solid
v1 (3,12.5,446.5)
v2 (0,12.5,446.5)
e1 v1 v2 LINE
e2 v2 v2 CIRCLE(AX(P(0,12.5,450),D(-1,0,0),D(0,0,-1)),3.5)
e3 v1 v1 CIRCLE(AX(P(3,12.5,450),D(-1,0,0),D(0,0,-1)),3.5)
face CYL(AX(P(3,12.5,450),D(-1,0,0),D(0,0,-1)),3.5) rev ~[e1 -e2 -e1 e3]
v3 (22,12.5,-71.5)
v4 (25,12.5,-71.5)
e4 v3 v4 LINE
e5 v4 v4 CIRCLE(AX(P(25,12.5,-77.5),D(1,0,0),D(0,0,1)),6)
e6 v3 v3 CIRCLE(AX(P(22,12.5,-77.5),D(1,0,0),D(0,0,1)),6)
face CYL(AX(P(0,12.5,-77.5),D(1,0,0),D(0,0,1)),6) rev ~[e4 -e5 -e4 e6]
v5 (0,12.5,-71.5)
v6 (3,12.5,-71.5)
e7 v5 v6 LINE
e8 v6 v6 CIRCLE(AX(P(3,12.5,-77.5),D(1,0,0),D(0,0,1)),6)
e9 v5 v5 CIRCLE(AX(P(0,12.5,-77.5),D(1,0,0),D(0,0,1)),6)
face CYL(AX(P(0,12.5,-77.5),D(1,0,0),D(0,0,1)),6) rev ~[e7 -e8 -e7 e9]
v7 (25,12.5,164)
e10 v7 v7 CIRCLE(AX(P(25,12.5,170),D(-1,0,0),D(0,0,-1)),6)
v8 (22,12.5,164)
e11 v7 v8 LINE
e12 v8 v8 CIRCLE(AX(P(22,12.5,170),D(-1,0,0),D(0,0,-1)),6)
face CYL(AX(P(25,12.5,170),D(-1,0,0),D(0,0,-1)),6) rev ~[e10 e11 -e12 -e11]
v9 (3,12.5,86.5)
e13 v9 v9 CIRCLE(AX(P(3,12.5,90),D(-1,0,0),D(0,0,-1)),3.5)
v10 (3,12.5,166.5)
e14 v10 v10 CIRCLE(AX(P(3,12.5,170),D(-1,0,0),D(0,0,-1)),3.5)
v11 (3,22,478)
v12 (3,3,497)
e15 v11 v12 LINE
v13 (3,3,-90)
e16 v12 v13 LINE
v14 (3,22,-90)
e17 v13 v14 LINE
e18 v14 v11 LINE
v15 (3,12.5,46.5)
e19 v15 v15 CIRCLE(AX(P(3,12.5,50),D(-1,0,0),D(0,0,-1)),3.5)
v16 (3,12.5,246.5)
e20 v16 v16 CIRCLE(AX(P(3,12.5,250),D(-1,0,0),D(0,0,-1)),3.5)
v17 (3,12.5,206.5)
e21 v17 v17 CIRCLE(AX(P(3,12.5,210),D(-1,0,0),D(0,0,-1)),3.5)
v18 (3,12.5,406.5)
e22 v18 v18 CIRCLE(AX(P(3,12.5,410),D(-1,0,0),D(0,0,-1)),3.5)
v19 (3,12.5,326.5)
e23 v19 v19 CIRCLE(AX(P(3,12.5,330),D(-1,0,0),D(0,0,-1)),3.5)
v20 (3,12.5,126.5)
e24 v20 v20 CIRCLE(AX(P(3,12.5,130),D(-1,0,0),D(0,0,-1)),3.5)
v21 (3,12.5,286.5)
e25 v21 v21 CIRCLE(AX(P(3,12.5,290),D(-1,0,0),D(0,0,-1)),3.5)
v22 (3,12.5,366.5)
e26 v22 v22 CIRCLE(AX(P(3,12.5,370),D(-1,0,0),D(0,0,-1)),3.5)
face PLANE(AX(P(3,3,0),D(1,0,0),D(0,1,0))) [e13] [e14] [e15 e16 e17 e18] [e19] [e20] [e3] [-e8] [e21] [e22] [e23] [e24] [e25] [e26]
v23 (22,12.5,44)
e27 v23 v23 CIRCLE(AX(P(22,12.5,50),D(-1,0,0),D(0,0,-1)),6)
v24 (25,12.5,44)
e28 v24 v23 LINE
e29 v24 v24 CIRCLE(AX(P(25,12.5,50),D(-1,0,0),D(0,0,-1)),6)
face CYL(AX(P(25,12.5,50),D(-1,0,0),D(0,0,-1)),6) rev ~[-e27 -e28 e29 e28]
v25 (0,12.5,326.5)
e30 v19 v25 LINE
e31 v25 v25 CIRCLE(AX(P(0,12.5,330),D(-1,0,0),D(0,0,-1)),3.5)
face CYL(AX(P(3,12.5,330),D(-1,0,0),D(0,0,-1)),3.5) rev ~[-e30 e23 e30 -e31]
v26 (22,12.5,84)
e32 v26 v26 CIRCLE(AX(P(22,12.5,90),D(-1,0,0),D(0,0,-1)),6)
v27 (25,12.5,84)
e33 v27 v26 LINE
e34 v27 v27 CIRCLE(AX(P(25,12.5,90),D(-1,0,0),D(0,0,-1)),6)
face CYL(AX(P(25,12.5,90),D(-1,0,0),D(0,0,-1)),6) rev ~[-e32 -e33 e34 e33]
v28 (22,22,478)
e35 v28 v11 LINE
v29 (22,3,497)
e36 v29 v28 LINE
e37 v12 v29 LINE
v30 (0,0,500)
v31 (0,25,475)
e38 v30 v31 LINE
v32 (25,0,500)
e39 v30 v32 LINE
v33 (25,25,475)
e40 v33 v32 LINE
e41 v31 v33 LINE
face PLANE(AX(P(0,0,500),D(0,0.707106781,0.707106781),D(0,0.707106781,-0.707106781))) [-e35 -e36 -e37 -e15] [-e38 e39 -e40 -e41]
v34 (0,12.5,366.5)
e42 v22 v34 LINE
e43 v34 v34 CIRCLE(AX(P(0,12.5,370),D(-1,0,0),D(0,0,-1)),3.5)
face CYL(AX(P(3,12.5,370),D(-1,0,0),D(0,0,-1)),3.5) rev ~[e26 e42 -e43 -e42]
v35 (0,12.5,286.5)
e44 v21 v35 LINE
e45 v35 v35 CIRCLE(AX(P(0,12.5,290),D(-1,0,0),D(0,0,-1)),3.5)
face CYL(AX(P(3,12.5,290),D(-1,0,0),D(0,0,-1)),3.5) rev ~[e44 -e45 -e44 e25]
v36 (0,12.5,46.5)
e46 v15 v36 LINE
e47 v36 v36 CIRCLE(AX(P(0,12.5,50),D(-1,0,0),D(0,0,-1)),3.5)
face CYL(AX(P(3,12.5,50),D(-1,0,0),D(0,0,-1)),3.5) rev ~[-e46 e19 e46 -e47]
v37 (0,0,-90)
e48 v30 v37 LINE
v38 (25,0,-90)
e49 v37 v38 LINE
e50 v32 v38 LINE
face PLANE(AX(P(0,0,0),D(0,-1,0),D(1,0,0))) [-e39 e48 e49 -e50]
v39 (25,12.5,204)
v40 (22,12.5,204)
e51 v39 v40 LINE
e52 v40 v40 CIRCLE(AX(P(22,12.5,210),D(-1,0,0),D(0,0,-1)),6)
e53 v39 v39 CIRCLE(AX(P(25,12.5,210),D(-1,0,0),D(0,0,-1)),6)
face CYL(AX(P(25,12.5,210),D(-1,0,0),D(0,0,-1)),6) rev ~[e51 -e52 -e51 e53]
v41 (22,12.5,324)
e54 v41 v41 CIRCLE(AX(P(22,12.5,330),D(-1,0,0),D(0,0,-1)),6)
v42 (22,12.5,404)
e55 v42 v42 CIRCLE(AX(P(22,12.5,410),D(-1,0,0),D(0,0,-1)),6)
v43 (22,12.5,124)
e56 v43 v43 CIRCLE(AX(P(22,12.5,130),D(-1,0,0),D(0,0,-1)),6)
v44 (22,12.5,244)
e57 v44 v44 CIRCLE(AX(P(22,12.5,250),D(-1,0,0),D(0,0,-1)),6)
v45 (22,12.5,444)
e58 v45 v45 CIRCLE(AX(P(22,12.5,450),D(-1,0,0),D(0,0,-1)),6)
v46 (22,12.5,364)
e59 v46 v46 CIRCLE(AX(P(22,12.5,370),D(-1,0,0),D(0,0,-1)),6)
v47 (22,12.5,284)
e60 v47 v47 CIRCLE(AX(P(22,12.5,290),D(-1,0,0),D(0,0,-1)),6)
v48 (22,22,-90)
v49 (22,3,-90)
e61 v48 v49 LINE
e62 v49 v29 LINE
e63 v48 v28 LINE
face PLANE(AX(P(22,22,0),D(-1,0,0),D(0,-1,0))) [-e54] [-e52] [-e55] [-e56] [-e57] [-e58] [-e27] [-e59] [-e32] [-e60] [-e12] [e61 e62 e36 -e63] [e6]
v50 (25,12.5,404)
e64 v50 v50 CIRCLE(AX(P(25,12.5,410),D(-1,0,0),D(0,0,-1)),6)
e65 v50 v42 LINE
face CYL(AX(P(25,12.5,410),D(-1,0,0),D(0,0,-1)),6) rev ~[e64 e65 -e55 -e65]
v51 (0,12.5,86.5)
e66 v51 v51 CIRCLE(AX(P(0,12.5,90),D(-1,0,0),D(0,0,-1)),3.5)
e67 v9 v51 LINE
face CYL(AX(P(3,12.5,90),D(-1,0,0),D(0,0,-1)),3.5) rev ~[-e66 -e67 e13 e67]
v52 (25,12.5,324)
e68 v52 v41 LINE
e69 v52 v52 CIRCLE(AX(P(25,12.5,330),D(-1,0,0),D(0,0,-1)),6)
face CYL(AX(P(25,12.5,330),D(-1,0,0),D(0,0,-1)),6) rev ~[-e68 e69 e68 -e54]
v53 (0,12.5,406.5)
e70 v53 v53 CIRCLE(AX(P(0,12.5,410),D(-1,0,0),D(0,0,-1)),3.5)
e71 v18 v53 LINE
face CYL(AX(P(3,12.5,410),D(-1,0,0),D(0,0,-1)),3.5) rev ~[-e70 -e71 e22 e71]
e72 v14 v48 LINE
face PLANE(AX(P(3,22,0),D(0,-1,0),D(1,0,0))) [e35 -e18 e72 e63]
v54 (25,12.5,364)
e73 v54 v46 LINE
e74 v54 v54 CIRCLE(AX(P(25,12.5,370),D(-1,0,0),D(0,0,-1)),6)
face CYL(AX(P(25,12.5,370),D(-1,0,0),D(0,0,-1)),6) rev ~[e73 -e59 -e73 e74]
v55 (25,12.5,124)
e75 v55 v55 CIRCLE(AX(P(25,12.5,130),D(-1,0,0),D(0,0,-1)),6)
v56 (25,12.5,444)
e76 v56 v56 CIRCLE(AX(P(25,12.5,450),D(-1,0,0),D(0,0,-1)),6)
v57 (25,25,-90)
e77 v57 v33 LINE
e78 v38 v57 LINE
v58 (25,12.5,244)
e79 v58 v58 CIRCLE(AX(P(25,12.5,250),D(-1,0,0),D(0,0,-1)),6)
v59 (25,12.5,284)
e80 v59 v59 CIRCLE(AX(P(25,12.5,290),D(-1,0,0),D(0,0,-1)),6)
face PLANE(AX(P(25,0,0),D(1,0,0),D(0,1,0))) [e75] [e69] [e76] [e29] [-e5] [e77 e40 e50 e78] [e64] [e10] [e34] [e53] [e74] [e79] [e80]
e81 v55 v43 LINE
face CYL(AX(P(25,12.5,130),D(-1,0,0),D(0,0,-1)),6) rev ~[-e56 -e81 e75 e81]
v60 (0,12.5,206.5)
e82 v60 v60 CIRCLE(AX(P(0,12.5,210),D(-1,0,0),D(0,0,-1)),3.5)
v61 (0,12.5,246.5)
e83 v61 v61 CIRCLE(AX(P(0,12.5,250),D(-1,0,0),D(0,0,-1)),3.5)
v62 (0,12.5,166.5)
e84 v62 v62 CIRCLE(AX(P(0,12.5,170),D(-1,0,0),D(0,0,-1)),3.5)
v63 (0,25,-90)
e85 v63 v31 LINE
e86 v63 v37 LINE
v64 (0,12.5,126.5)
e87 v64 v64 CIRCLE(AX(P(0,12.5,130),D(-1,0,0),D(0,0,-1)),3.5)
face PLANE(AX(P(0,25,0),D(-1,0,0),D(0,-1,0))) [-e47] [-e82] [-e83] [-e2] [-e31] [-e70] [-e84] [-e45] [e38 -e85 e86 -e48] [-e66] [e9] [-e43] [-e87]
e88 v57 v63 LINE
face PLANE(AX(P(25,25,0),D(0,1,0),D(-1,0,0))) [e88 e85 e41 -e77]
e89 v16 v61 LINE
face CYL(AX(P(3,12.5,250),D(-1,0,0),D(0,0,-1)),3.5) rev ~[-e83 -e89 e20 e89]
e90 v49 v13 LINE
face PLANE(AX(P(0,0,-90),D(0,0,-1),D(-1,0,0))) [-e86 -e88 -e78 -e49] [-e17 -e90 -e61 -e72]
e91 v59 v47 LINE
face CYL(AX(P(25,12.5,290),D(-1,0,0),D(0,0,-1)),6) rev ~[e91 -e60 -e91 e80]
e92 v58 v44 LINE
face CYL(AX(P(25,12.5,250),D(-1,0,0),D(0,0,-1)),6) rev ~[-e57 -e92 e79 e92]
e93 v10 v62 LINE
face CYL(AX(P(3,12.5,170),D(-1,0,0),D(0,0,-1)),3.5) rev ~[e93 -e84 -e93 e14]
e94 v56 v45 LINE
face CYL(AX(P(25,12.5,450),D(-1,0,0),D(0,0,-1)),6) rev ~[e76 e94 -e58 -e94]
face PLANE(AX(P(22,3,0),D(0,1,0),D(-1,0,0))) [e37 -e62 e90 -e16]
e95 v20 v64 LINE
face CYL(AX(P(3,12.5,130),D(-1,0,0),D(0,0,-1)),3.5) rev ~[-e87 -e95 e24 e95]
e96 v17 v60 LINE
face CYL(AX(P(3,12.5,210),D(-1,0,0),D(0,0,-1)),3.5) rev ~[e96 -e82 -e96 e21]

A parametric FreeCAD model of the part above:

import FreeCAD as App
import Part
import Sketcher

V = App.Vector

doc = App.newDocument("Part")
body = doc.addObject("PartDesign::Body", "Body")

# Sketch on XY plane
sketch1 = doc.addObject("Sketcher::SketchObject", "Sketch")
body.addObject(sketch1)
sketch1.AttachmentSupport = (doc.XY_Plane, [""])
sketch1.MapMode = "FlatFace"
sketch1.addGeometry(Part.LineSegment(V(0, 25, 0), V(0, 0, 0)), False)
sketch1.addGeometry(Part.LineSegment(V(0, 0, 0), V(25, 0, 0)), False)
sketch1.addGeometry(Part.LineSegment(V(25, 0, 0), V(25, 25, 0)), False)
sketch1.addGeometry(Part.LineSegment(V(25, 25, 0), V(0, 25, 0)), False)
sketch1.addGeometry(Part.LineSegment(V(22, 3, 0), V(3, 3, 0)), False)
sketch1.addGeometry(Part.LineSegment(V(3, 3, 0), V(3, 22, 0)), False)
sketch1.addGeometry(Part.LineSegment(V(3, 22, 0), V(22, 22, 0)), False)
sketch1.addGeometry(Part.LineSegment(V(22, 22, 0), V(22, 3, 0)), False)
sketch1.addConstraint(Sketcher.Constraint("Coincident", 0, 2, 1, 1))
sketch1.addConstraint(Sketcher.Constraint("Coincident", 1, 2, 2, 1))
sketch1.addConstraint(Sketcher.Constraint("Coincident", 2, 2, 3, 1))
sketch1.addConstraint(Sketcher.Constraint("Coincident", 3, 2, 0, 1))
sketch1.addConstraint(Sketcher.Constraint("Coincident", 4, 2, 5, 1))
sketch1.addConstraint(Sketcher.Constraint("Coincident", 5, 2, 6, 1))
sketch1.addConstraint(Sketcher.Constraint("Coincident", 6, 2, 7, 1))
sketch1.addConstraint(Sketcher.Constraint("Coincident", 7, 2, 4, 1))
sketch1.addConstraint(Sketcher.Constraint("Vertical", 0))
sketch1.addConstraint(Sketcher.Constraint("Horizontal", 1))
sketch1.addConstraint(Sketcher.Constraint("Vertical", 2))
sketch1.addConstraint(Sketcher.Constraint("Horizontal", 3))
sketch1.addConstraint(Sketcher.Constraint("Horizontal", 4))
sketch1.addConstraint(Sketcher.Constraint("Vertical", 5))
sketch1.addConstraint(Sketcher.Constraint("Horizontal", 6))
sketch1.addConstraint(Sketcher.Constraint("Vertical", 7))
sketch1.addConstraint(Sketcher.Constraint("Coincident", 0, 2, -1, 1))
sketch1.addConstraint(Sketcher.Constraint("Equal", 3, 0))
sketch1.addConstraint(Sketcher.Constraint("Equal", 6, 5))
sketch1.addConstraint(Sketcher.Constraint("DistanceX", 1, 1, 1, 2, 25.0))
sketch1.addConstraint(Sketcher.Constraint("DistanceX", -1, 1, 4, 2, 3.0))
sketch1.addConstraint(Sketcher.Constraint("DistanceY", -1, 1, 4, 2, 3.0))
sketch1.addConstraint(Sketcher.Constraint("DistanceY", 5, 2, 3, 2, 3.0))
pad1 = doc.addObject("PartDesign::Pad", "Pad")
body.addObject(pad1)
pad1.Profile = sketch1
pad1.Length = 500

# Sketch on YZ plane
sketch2 = doc.addObject("Sketcher::SketchObject", "Sketch001")
body.addObject(sketch2)
sketch2.AttachmentSupport = (doc.YZ_Plane, [""])
sketch2.MapMode = "FlatFace"
sketch2.AttachmentOffset = App.Placement(V(0, 0, 25), App.Rotation())
sketch2.addGeometry(Part.Circle(V(12, 450, 0), V(0, 0, 1), 6), False)
sketch2.addGeometry(Part.Circle(V(12, 50, 0), V(0, 0, 1), 6), False)
sketch2.addGeometry(Part.Circle(V(12, 410, 0), V(0, 0, 1), 6), False)
sketch2.addGeometry(Part.Circle(V(12, 370, 0), V(0, 0, 1), 6), False)
sketch2.addGeometry(Part.Circle(V(12, 330, 0), V(0, 0, 1), 6), False)
sketch2.addGeometry(Part.Circle(V(12, 290, 0), V(0, 0, 1), 6), False)
sketch2.addGeometry(Part.Circle(V(12, 250, 0), V(0, 0, 1), 6), False)
sketch2.addGeometry(Part.Circle(V(12, 210, 0), V(0, 0, 1), 6), False)
sketch2.addGeometry(Part.Circle(V(12, 170, 0), V(0, 0, 1), 6), False)
sketch2.addGeometry(Part.Circle(V(12, 130, 0), V(0, 0, 1), 6), False)
sketch2.addGeometry(Part.Circle(V(12, 90, 0), V(0, 0, 1), 6), False)
sketch2.addConstraint(Sketcher.Constraint("Equal", 0, 1))
sketch2.addConstraint(Sketcher.Constraint("Equal", 1, 2))
sketch2.addConstraint(Sketcher.Constraint("Equal", 2, 3))
sketch2.addConstraint(Sketcher.Constraint("Equal", 3, 4))
sketch2.addConstraint(Sketcher.Constraint("Equal", 4, 5))
sketch2.addConstraint(Sketcher.Constraint("Equal", 5, 6))
sketch2.addConstraint(Sketcher.Constraint("Equal", 6, 7))
sketch2.addConstraint(Sketcher.Constraint("Equal", 7, 8))
sketch2.addConstraint(Sketcher.Constraint("Equal", 8, 9))
sketch2.addConstraint(Sketcher.Constraint("Equal", 9, 10))
sketch2.addConstraint(Sketcher.Constraint("Vertical", 0, 3, 1, 3))
sketch2.addConstraint(Sketcher.Constraint("Vertical", 1, 3, 2, 3))
sketch2.addConstraint(Sketcher.Constraint("Vertical", 2, 3, 3, 3))
sketch2.addConstraint(Sketcher.Constraint("Vertical", 3, 3, 4, 3))
sketch2.addConstraint(Sketcher.Constraint("Vertical", 4, 3, 5, 3))
sketch2.addConstraint(Sketcher.Constraint("Vertical", 5, 3, 6, 3))
sketch2.addConstraint(Sketcher.Constraint("Vertical", 6, 3, 7, 3))
sketch2.addConstraint(Sketcher.Constraint("Vertical", 7, 3, 8, 3))
sketch2.addConstraint(Sketcher.Constraint("Vertical", 8, 3, 9, 3))
sketch2.addConstraint(Sketcher.Constraint("Vertical", 9, 3, 10, 3))
sketch2.addConstraint(Sketcher.Constraint("Diameter", 0, 12.0))
sketch2.addConstraint(Sketcher.Constraint("DistanceY", -1, 1, 0, 3, 450.0))
sketch2.addConstraint(Sketcher.Constraint("DistanceY", -1, 1, 1, 3, 50.0))
sketch2.addConstraint(Sketcher.Constraint("DistanceY", -1, 1, 2, 3, 410.0))
sketch2.addConstraint(Sketcher.Constraint("DistanceY", -1, 1, 3, 3, 370.0))
sketch2.addConstraint(Sketcher.Constraint("DistanceY", -1, 1, 4, 3, 330.0))
sketch2.addConstraint(Sketcher.Constraint("DistanceY", -1, 1, 5, 3, 290.0))
sketch2.addConstraint(Sketcher.Constraint("DistanceY", -1, 1, 6, 3, 250.0))
sketch2.addConstraint(Sketcher.Constraint("DistanceY", -1, 1, 7, 3, 210.0))
sketch2.addConstraint(Sketcher.Constraint("DistanceY", -1, 1, 8, 3, 170.0))
sketch2.addConstraint(Sketcher.Constraint("DistanceY", -1, 1, 9, 3, 130.0))
sketch2.addConstraint(Sketcher.Constraint("DistanceY", -1, 1, 10, 3, 90.0))
sketch2.addConstraint(Sketcher.Constraint("DistanceX", -1, 1, 0, 3, 12.5))
doc.recompute()
hole = doc.addObject("PartDesign::Hole", "Hole")
body.addObject(hole)
hole.Profile = sketch2
hole.ThreadType = "None"
hole.Diameter = 12
hole.DepthType = "Dimension"
hole.Depth = 8
hole.DrillPoint = "Angled"
hole.DrillPointAngle = 118

# Sketch on YZ plane
sketch3 = doc.addObject("Sketcher::SketchObject", "Sketch002")
body.addObject(sketch3)
sketch3.AttachmentSupport = (doc.YZ_Plane, [""])
sketch3.MapMode = "FlatFace"
sketch3.AttachmentOffset = App.Placement(V(0, 0, 3), App.Rotation())
sketch3.addGeometry(Part.Circle(V(12.5, 50, 0), V(0, 0, 1), 3.5), False)
sketch3.addGeometry(Part.Circle(V(12.5, 90, 0), V(0, 0, 1), 3.5), False)
sketch3.addGeometry(Part.Circle(V(12.5, 130, 0), V(0, 0, 1), 3.5), False)
sketch3.addGeometry(Part.Circle(V(12.5, 170, 0), V(0, 0, 1), 3.5), False)
sketch3.addGeometry(Part.Circle(V(12.5, 210, 0), V(0, 0, 1), 3.5), False)
sketch3.addGeometry(Part.Circle(V(12.5, 250, 0), V(0, 0, 1), 3.5), False)
sketch3.addGeometry(Part.Circle(V(12.5, 290, 0), V(0, 0, 1), 3.5), False)
sketch3.addGeometry(Part.Circle(V(12.5, 330, 0), V(0, 0, 1), 3.5), False)
sketch3.addGeometry(Part.Circle(V(12.5, 370, 0), V(0, 0, 1), 3.5), False)
sketch3.addGeometry(Part.Circle(V(12.5, 410, 0), V(0, 0, 1), 3.5), False)
sketch3.addGeometry(Part.Circle(V(12.5, 450, 0), V(0, 0, 1), 3.5), False)
sketch3.addConstraint(Sketcher.Constraint("Equal", 0, 1))
sketch3.addConstraint(Sketcher.Constraint("Equal", 1, 2))
sketch3.addConstraint(Sketcher.Constraint("Equal", 2, 3))
sketch3.addConstraint(Sketcher.Constraint("Equal", 3, 4))
sketch3.addConstraint(Sketcher.Constraint("Equal", 4, 5))
sketch3.addConstraint(Sketcher.Constraint("Equal", 5, 6))
sketch3.addConstraint(Sketcher.Constraint("Equal", 6, 7))
sketch3.addConstraint(Sketcher.Constraint("Equal", 7, 8))
sketch3.addConstraint(Sketcher.Constraint("Equal", 8, 9))
sketch3.addConstraint(Sketcher.Constraint("Equal", 9, 10))
sketch3.addConstraint(Sketcher.Constraint("Vertical", 0, 3, 1, 3))
sketch3.addConstraint(Sketcher.Constraint("Vertical", 1, 3, 2, 3))
sketch3.addConstraint(Sketcher.Constraint("Vertical", 2, 3, 3, 3))
sketch3.addConstraint(Sketcher.Constraint("Vertical", 3, 3, 4, 3))
sketch3.addConstraint(Sketcher.Constraint("Vertical", 4, 3, 5, 3))
sketch3.addConstraint(Sketcher.Constraint("Vertical", 5, 3, 6, 3))
sketch3.addConstraint(Sketcher.Constraint("Vertical", 6, 3, 7, 3))
sketch3.addConstraint(Sketcher.Constraint("Vertical", 7, 3, 8, 3))
sketch3.addConstraint(Sketcher.Constraint("Vertical", 8, 3, 9, 3))
sketch3.addConstraint(Sketcher.Constraint("Vertical", 9, 3, 10, 3))
sketch3.addConstraint(Sketcher.Constraint("Diameter", 0, 7.0))
sketch3.addConstraint(Sketcher.Constraint("DistanceY", -1, 1, 0, 3, 50.0))
sketch3.addConstraint(Sketcher.Constraint("DistanceY", -1, 1, 1, 3, 90.0))
sketch3.addConstraint(Sketcher.Constraint("DistanceY", -1, 1, 2, 3, 130.0))
sketch3.addConstraint(Sketcher.Constraint("DistanceY", -1, 1, 3, 3, 170.0))
sketch3.addConstraint(Sketcher.Constraint("DistanceY", -1, 1, 4, 3, 210.0))
sketch3.addConstraint(Sketcher.Constraint("DistanceY", -1, 1, 5, 3, 250.0))
sketch3.addConstraint(Sketcher.Constraint("DistanceY", -1, 1, 6, 3, 290.0))
sketch3.addConstraint(Sketcher.Constraint("DistanceY", -1, 1, 7, 3, 330.0))
sketch3.addConstraint(Sketcher.Constraint("DistanceY", -1, 1, 8, 3, 370.0))
sketch3.addConstraint(Sketcher.Constraint("DistanceY", -1, 1, 9, 3, 410.0))
sketch3.addConstraint(Sketcher.Constraint("DistanceY", -1, 1, 10, 3, 450.0))
sketch3.addConstraint(Sketcher.Constraint("DistanceX", -1, 1, 0, 3, 12.5))
doc.recompute()
hole2 = doc.addObject("PartDesign::Hole", "Hole001")
body.addObject(hole2)
hole2.Profile = sketch3
hole2.ThreadType = "None"
hole2.Diameter = 7
hole2.DepthType = "Dimension"
hole2.Depth = 8
hole2.DrillPoint = "Angled"
hole2.DrillPointAngle = 118

# Sketch on XY plane
sketch4 = doc.addObject("Sketcher::SketchObject", "Sketch003")
body.addObject(sketch4)
sketch4.AttachmentSupport = (doc.XY_Plane, [""])
sketch4.MapMode = "FlatFace"
sketch4.addGeometry(Part.LineSegment(V(25, 25, 0), V(25, 0, 0)), False)
sketch4.addGeometry(Part.LineSegment(V(25, 0, 0), V(0, 0, 0)), False)
sketch4.addGeometry(Part.LineSegment(V(0, 0, 0), V(0, 25, 0)), False)
sketch4.addGeometry(Part.LineSegment(V(0, 25, 0), V(25, 25, 0)), False)
sketch4.addGeometry(Part.LineSegment(V(3, 22, 0), V(3, 3, 0)), False)
sketch4.addGeometry(Part.LineSegment(V(3, 3, 0), V(22, 3, 0)), False)
sketch4.addGeometry(Part.LineSegment(V(22, 3, 0), V(22, 22, 0)), False)
sketch4.addGeometry(Part.LineSegment(V(22, 22, 0), V(3, 22, 0)), False)
sketch4.addConstraint(Sketcher.Constraint("Coincident", 0, 2, 1, 1))
sketch4.addConstraint(Sketcher.Constraint("Coincident", 1, 2, 2, 1))
sketch4.addConstraint(Sketcher.Constraint("Coincident", 2, 2, 3, 1))
sketch4.addConstraint(Sketcher.Constraint("Coincident", 3, 2, 0, 1))
sketch4.addConstraint(Sketcher.Constraint("Coincident", 4, 2, 5, 1))
sketch4.addConstraint(Sketcher.Constraint("Coincident", 5, 2, 6, 1))
sketch4.addConstraint(Sketcher.Constraint("Coincident", 6, 2, 7, 1))
sketch4.addConstraint(Sketcher.Constraint("Coincident", 7, 2, 4, 1))
sketch4.addConstraint(Sketcher.Constraint("Vertical", 0))
sketch4.addConstraint(Sketcher.Constraint("Horizontal", 1))
sketch4.addConstraint(Sketcher.Constraint("Vertical", 2))
sketch4.addConstraint(Sketcher.Constraint("Horizontal", 3))
sketch4.addConstraint(Sketcher.Constraint("Vertical", 4))
sketch4.addConstraint(Sketcher.Constraint("Horizontal", 5))
sketch4.addConstraint(Sketcher.Constraint("Vertical", 6))
sketch4.addConstraint(Sketcher.Constraint("Horizontal", 7))
sketch4.addConstraint(Sketcher.Constraint("Coincident", 1, 2, -1, 1))
sketch4.addConstraint(Sketcher.Constraint("Equal", 3, 0))
sketch4.addConstraint(Sketcher.Constraint("Equal", 7, 4))
sketch4.addConstraint(Sketcher.Constraint("DistanceX", 1, 2, 1, 1, 25.0))
sketch4.addConstraint(Sketcher.Constraint("DistanceX", 5, 1, 5, 2, 19.0))
sketch4.addConstraint(Sketcher.Constraint("DistanceX", -1, 1, 4, 2, 3.0))
sketch4.addConstraint(Sketcher.Constraint("DistanceY", -1, 1, 4, 2, 3.0))
pad2 = doc.addObject("PartDesign::Pad", "Pad001")
body.addObject(pad2)
pad2.Profile = sketch4
pad2.Length = 90
pad2.Reversed = True

# Sketch on YZ plane
sketch5 = doc.addObject("Sketcher::SketchObject", "Sketch004")
body.addObject(sketch5)
sketch5.AttachmentSupport = (doc.YZ_Plane, [""])
sketch5.MapMode = "FlatFace"
sketch5.addGeometry(Part.Circle(V(12, -78, 0), V(0, 0, 1), 6), False)
sketch5.addConstraint(Sketcher.Constraint("Diameter", 0, 12.0))
sketch5.addConstraint(Sketcher.Constraint("DistanceX", -1, 1, 0, 3, 12.5))
sketch5.addConstraint(Sketcher.Constraint("DistanceY", 0, 3, -1, 1, 77.5))
doc.recompute()
hole3 = doc.addObject("PartDesign::Hole", "Hole002")
body.addObject(hole3)
hole3.Profile = sketch5
hole3.ThreadType = "None"
hole3.Diameter = 12
hole3.DepthType = "ThroughAll"
hole3.Reversed = True

# Sketch on YZ plane
sketch6 = doc.addObject("Sketcher::SketchObject", "Sketch005")
body.addObject(sketch6)
sketch6.AttachmentSupport = (doc.YZ_Plane, [""])
sketch6.MapMode = "FlatFace"
sketch6.addGeometry(Part.LineSegment(V(25, 475, 0), V(0, 500, 0)), False)
sketch6.addGeometry(Part.LineSegment(V(0, 500, 0), V(25, 500, 0)), False)
sketch6.addGeometry(Part.LineSegment(V(25, 500, 0), V(25, 475, 0)), False)
sketch6.addConstraint(Sketcher.Constraint("Coincident", 0, 2, 1, 1))
sketch6.addConstraint(Sketcher.Constraint("Coincident", 1, 2, 2, 1))
sketch6.addConstraint(Sketcher.Constraint("Coincident", 2, 2, 0, 1))
sketch6.addConstraint(Sketcher.Constraint("Horizontal", 1))
sketch6.addConstraint(Sketcher.Constraint("Vertical", 2))
sketch6.addConstraint(Sketcher.Constraint("PointOnObject", 0, 2, -2))
sketch6.addConstraint(Sketcher.Constraint("Equal", 1, 2))
sketch6.addConstraint(Sketcher.Constraint("DistanceX", 1, 1, 1, 2, 25.0))
sketch6.addConstraint(Sketcher.Constraint("DistanceY", -1, 1, 0, 2, 500.0))
pocket1 = doc.addObject("PartDesign::Pocket", "Pocket")
body.addObject(pocket1)
pocket1.Profile = sketch6
pocket1.Length = 109.75
pocket1.Reversed = True

doc.recompute()
